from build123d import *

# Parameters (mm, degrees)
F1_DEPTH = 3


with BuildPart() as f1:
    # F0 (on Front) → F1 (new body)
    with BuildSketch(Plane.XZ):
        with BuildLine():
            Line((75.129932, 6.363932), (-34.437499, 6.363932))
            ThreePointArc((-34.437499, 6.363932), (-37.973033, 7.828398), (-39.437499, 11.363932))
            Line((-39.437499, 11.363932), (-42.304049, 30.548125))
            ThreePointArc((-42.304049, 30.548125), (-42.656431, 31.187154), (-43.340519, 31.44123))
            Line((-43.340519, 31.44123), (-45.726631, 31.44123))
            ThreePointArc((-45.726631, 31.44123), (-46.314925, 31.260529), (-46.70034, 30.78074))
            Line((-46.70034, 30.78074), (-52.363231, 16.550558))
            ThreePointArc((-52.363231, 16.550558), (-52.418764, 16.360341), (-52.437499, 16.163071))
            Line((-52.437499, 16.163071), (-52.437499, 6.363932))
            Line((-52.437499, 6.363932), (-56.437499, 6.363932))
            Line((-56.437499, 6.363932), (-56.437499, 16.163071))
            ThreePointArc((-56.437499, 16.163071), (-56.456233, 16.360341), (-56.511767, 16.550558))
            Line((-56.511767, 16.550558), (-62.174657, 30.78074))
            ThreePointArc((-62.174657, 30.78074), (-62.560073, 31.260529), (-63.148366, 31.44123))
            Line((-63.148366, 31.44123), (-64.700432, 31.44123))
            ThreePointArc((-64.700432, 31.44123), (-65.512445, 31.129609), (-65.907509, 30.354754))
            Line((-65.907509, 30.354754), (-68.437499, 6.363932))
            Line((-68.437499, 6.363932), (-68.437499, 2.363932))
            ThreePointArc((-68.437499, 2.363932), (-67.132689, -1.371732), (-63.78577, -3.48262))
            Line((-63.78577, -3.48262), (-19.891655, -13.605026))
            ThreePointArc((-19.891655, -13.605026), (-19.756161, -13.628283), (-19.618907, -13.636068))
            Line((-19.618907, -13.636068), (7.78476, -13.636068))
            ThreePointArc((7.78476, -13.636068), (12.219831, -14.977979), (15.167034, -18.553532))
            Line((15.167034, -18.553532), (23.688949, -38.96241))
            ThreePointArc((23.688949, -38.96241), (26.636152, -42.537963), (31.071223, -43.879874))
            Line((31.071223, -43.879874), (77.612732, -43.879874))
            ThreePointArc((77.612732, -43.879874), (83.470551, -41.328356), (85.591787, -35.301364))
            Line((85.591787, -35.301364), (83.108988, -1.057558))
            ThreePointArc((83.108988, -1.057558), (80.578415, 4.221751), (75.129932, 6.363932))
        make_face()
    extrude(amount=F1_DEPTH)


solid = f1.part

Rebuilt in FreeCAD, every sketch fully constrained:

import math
import FreeCAD as App
import Part
import Sketcher
from FreeCAD import Vector

doc = App.newDocument("Part")
body = doc.addObject("PartDesign::Body", "Body")

# Sketch on XZ plane
sketch1 = doc.addObject("Sketcher::SketchObject", "Sketch")
body.addObject(sketch1)
sketch1.AttachmentSupport = (doc.XZ_Plane, [""])
sketch1.MapMode = "FlatFace"
sketch1.addGeometry([
    Part.LineSegment(Vector(75.129932, 6.363932, 0), Vector(-34.437499, 6.363932, 0)),  # 0
    Part.ArcOfCircle(Part.Circle(Vector(-34.437499, 11.363932, 0), Vector(0, 0, 1), 5), math.radians(179.999996), math.radians(270.000004)),  # 1
    Part.LineSegment(Vector(-39.437499, 11.363932, 0), Vector(-42.304049, 30.548125, 0)),  # 2
    Part.ArcOfCircle(Part.Circle(Vector(-43.34052, 30.393252, 0), Vector(0, 0, 1), 1.047978), math.radians(8.498428), math.radians(89.999966)),  # 3
    Part.LineSegment(Vector(-43.340519, 31.44123, 0), Vector(-45.726631, 31.44123, 0)),  # 4
    Part.ArcOfCircle(Part.Circle(Vector(-45.726634, 30.393257, 0), Vector(0, 0, 1), 1.047973), math.radians(89.999846), math.radians(158.300112)),  # 5
    Part.LineSegment(Vector(-46.70034, 30.78074, 0), Vector(-52.363231, 16.550558, 0)),  # 6
    Part.ArcOfCircle(Part.Circle(Vector(-51.389495, 16.163065, 0), Vector(0, 0, 1), 1.048004), math.radians(158.300202), math.radians(179.999686)),  # 7
    Part.LineSegment(Vector(-52.437499, 16.163071, 0), Vector(-52.437499, 6.363932, 0)),  # 8
    Part.LineSegment(Vector(-52.437499, 6.363932, 0), Vector(-56.437499, 6.363932, 0)),  # 9
    Part.LineSegment(Vector(-56.437499, 6.363932, 0), Vector(-56.437499, 16.163071, 0)),  # 10
    Part.ArcOfCircle(Part.Circle(Vector(-57.485449, 16.163076, 0), Vector(0, 0, 1), 1.04795), math.radians(-0.000251), math.radians(21.700363)),  # 11
    Part.LineSegment(Vector(-56.511767, 16.550558, 0), Vector(-62.174657, 30.78074, 0)),  # 12
    Part.ArcOfCircle(Part.Circle(Vector(-63.148365, 30.393255, 0), Vector(0, 0, 1), 1.047975), math.radians(21.699988), math.radians(90.000054)),  # 13
    Part.LineSegment(Vector(-63.148366, 31.44123, 0), Vector(-64.700432, 31.44123, 0)),  # 14
    Part.ArcOfCircle(Part.Circle(Vector(-64.700432, 30.22746, 0), Vector(0, 0, 1), 1.21377), math.radians(89.999999), math.radians(173.980022)),  # 15
    Part.LineSegment(Vector(-65.907509, 30.354754, 0), Vector(-68.437499, 6.363932, 0)),  # 16
    Part.LineSegment(Vector(-68.437499, 6.363932, 0), Vector(-68.437499, 2.363932, 0)),  # 17
    Part.ArcOfCircle(Part.Circle(Vector(-62.437496, 2.363934, 0), Vector(0, 0, 1), 6.000003), math.radians(-179.999985), math.radians(-102.985953)),  # 18
    Part.LineSegment(Vector(-63.78577, -3.48262, 0), Vector(-19.891655, -13.605026, 0)),  # 19
    Part.ArcOfCircle(Part.Circle(Vector(-19.618914, -12.422373, 0), Vector(0, 0, 1), 1.213695), math.radians(-102.98637), math.radians(-89.999649)),  # 20
    Part.LineSegment(Vector(-19.618907, -13.636068, 0), Vector(7.78476, -13.636068, 0)),  # 21
    Part.ArcOfCircle(Part.Circle(Vector(7.784761, -21.636066, 0), Vector(0, 0, 1), 7.999998), math.radians(22.663414), math.radians(90.000007)),  # 22
    Part.LineSegment(Vector(15.167034, -18.553532, 0), Vector(23.688949, -38.96241, 0)),  # 23
    Part.ArcOfCircle(Part.Circle(Vector(31.071222, -35.879876, 0), Vector(0, 0, 1), 7.999998), math.radians(-157.336586), math.radians(-89.999993)),  # 24
    Part.LineSegment(Vector(31.071223, -43.879874, 0), Vector(77.612732, -43.879874, 0)),  # 25
    Part.ArcOfCircle(Part.Circle(Vector(77.612732, -35.879875, 0), Vector(0, 0, 1), 7.999999), math.radians(-90.000002), math.radians(4.146897)),  # 26
    Part.LineSegment(Vector(85.591787, -35.301364, 0), Vector(83.108988, -1.057558, 0)),  # 27
    Part.ArcOfCircle(Part.Circle(Vector(75.129933, -1.636067, 0), Vector(0, 0, 1), 7.999999), math.radians(4.146887), math.radians(90.000009)),  # 28
], False)
sketch1.addConstraint([
    Sketcher.Constraint("Coincident", 0, 2, 1, 2),
    Sketcher.Constraint("Coincident", 1, 1, 2, 1),
    Sketcher.Constraint("Coincident", 2, 2, 3, 1),
    Sketcher.Constraint("Coincident", 3, 2, 4, 1),
    Sketcher.Constraint("Coincident", 4, 2, 5, 1),
    Sketcher.Constraint("Coincident", 5, 2, 6, 1),
    Sketcher.Constraint("Coincident", 6, 2, 7, 1),
    Sketcher.Constraint("Coincident", 7, 2, 8, 1),
    Sketcher.Constraint("Coincident", 8, 2, 9, 1),
    Sketcher.Constraint("Coincident", 9, 2, 10, 1),
    Sketcher.Constraint("Coincident", 10, 2, 11, 1),
    Sketcher.Constraint("Coincident", 11, 2, 12, 1),
    Sketcher.Constraint("Coincident", 12, 2, 13, 1),
    Sketcher.Constraint("Coincident", 13, 2, 14, 1),
    Sketcher.Constraint("Coincident", 14, 2, 15, 1),
    Sketcher.Constraint("Coincident", 15, 2, 16, 1),
    Sketcher.Constraint("Coincident", 16, 2, 17, 1),
    Sketcher.Constraint("Coincident", 17, 2, 18, 1),
    Sketcher.Constraint("Coincident", 18, 2, 19, 1),
    Sketcher.Constraint("Coincident", 19, 2, 20, 1),
    Sketcher.Constraint("Coincident", 20, 2, 21, 1),
    Sketcher.Constraint("Coincident", 21, 2, 22, 2),
    Sketcher.Constraint("Coincident", 22, 1, 23, 1),
    Sketcher.Constraint("Coincident", 23, 2, 24, 1),
    Sketcher.Constraint("Coincident", 24, 2, 25, 1),
    Sketcher.Constraint("Coincident", 25, 2, 26, 1),
    Sketcher.Constraint("Coincident", 26, 2, 27, 1),
    Sketcher.Constraint("Coincident", 27, 2, 28, 1),
    Sketcher.Constraint("Coincident", 28, 2, 0, 1),
    Sketcher.Constraint("Horizontal", 0),
    Sketcher.Constraint("Horizontal", 4),
    Sketcher.Constraint("Vertical", 8),
    Sketcher.Constraint("Horizontal", 9),
    Sketcher.Constraint("Vertical", 10),
    Sketcher.Constraint("Horizontal", 14),
    Sketcher.Constraint("Vertical", 17),
    Sketcher.Constraint("Horizontal", 21),
    Sketcher.Constraint("Horizontal", 25),
    Sketcher.Constraint("Radius", 1, 5.0),
    Sketcher.Constraint("Radius", 22, 7.999998),
    Sketcher.Constraint("Radius", 24, 7.999998),
    Sketcher.Constraint("Radius", 26, 7.999999),
    Sketcher.Constraint("Radius", 28, 7.999999),
    Sketcher.Constraint("DistanceX", 9, 2, 9, 1, 4.0),
    Sketcher.Constraint("DistanceY", 17, 2, 17, 1, 4.0),
    Sketcher.Constraint("DistanceY", 18, 3, 1, 3, 8.999998),
    Sketcher.Constraint("DistanceY", 22, 3, 1, 3, 32.999998),
    Sketcher.Constraint("DistanceX", 1, 1, 0, 2, 5.0),
    Sketcher.Constraint("DistanceY", 0, 2, 1, 1, 5.0),
    Sketcher.Constraint("DistanceX", 7, 2, 1, 1, 13.0),
    Sketcher.Constraint("DistanceY", 18, 3, 8, 2, 3.999998),
    Sketcher.Constraint("DistanceY", 18, 3, 16, 2, 3.999998),
    Sketcher.Constraint("DistanceX", 16, 2, 9, 2, 12.0),
    Sketcher.Constraint("Radius", 11, 1.04795),
    Sketcher.Constraint("Radius", 15, 1.21377),
    Sketcher.Constraint("Radius", 3, 1.047978),
    Sketcher.Constraint("Radius", 5, 1.047973),
    Sketcher.Constraint("Radius", 7, 1.048004),
    Sketcher.Constraint("Radius", 13, 1.047975),
    Sketcher.Constraint("Radius", 18, 6.000003),
    Sketcher.Constraint("Radius", 20, 1.213695),
    Sketcher.Constraint("DistanceX", 0, 2, 0, 1, 109.567431),
    Sketcher.Constraint("DistanceX", 4, 2, 4, 1, 2.386112),
    Sketcher.Constraint("DistanceX", 25, 1, 25, 2, 46.541509),
    Sketcher.Constraint("DistanceY", 8, 2, 8, 1, 9.799139),
    Sketcher.Constraint("DistanceY", 10, 1, 10, 2, 9.799139),
    Sketcher.Constraint("DistanceX", 1, 3, -1, 1, 34.437499),
    Sketcher.Constraint("DistanceX", 15, 3, 5, 3, 18.973798),
    Sketcher.Constraint("DistanceY", 26, 3, 20, 3, 23.457501),
    Sketcher.Constraint("DistanceX", 28, 3, 26, 3, 2.482799),
    Sketcher.Constraint("DistanceY", 6, 2, 5, 3, 13.842699),
    Sketcher.Constraint("DistanceX", 13, 2, 11, 2, 6.636599),
    Sketcher.Constraint("DistanceY", 15, 2, 13, 3, 0.038501),
    Sketcher.Constraint("DistanceX", 28, 3, 25, 2, 2.482799),
    Sketcher.Constraint("DistanceX", 27, 2, 26, 2, 2.482799),
    Sketcher.Constraint("DistanceX", 28, 2, 26, 3, 2.4828),
    Sketcher.Constraint("Distance", 6, 15.315561),
    Sketcher.Constraint("Distance", 12, 15.315561),
    Sketcher.Constraint("Distance", 19, 45.046159),
    Sketcher.Constraint("Distance", 23, 22.11663),
    Sketcher.Constraint("DistanceX", 14, 2, 14, 1, 1.552066),
    Sketcher.Constraint("DistanceX", 21, 1, 21, 2, 27.403667),
    Sketcher.Constraint("DistanceY", -1, 1, 1, 3, 11.363932),
    Sketcher.Constraint("DistanceX", 3, 3, -1, 1, 43.34052),
    Sketcher.Constraint("DistanceY", -1, 1, 15, 3, 30.22746),
    Sketcher.Constraint("DistanceX", -1, 1, 22, 3, 7.784761),
    Sketcher.Constraint("DistanceX", 2, 2, -1, 1, 42.304049),
    Sketcher.Constraint("DistanceX", 3, 2, -1, 1, 43.340519),
    Sketcher.Constraint("DistanceY", -1, 1, 3, 2, 31.44123),
    Sketcher.Constraint("DistanceX", 5, 2, -1, 1, 46.70034),
    Sketcher.Constraint("DistanceY", -1, 1, 5, 2, 30.78074),
    Sketcher.Constraint("DistanceY", -1, 1, 12, 2, 30.78074),
    Sketcher.Constraint("DistanceX", 18, 2, -1, 1, 63.78577),
    Sketcher.Constraint("DistanceX", -1, 1, 21, 2, 7.78476),
    Sketcher.Constraint("DistanceX", -1, 1, 23, 2, 23.688949),
    Sketcher.Constraint("DistanceY", 23, 2, -1, 1, 38.96241),
    Sketcher.Constraint("DistanceY", 11, 3, 5, 3, 14.230182),
    Sketcher.Constraint("DistanceX", 13, 3, 5, 3, 17.421731),
    Sketcher.Constraint("DistanceX", 7, 3, 20, 3, 31.77058),
    Sketcher.Constraint("DistanceY", 26, 3, 26, 2, 0.578511),
])
pad1 = doc.addObject("PartDesign::Pad", "Pad")
body.addObject(pad1)
pad1.Profile = sketch1
pad1.Length = 3

doc.recompute()
